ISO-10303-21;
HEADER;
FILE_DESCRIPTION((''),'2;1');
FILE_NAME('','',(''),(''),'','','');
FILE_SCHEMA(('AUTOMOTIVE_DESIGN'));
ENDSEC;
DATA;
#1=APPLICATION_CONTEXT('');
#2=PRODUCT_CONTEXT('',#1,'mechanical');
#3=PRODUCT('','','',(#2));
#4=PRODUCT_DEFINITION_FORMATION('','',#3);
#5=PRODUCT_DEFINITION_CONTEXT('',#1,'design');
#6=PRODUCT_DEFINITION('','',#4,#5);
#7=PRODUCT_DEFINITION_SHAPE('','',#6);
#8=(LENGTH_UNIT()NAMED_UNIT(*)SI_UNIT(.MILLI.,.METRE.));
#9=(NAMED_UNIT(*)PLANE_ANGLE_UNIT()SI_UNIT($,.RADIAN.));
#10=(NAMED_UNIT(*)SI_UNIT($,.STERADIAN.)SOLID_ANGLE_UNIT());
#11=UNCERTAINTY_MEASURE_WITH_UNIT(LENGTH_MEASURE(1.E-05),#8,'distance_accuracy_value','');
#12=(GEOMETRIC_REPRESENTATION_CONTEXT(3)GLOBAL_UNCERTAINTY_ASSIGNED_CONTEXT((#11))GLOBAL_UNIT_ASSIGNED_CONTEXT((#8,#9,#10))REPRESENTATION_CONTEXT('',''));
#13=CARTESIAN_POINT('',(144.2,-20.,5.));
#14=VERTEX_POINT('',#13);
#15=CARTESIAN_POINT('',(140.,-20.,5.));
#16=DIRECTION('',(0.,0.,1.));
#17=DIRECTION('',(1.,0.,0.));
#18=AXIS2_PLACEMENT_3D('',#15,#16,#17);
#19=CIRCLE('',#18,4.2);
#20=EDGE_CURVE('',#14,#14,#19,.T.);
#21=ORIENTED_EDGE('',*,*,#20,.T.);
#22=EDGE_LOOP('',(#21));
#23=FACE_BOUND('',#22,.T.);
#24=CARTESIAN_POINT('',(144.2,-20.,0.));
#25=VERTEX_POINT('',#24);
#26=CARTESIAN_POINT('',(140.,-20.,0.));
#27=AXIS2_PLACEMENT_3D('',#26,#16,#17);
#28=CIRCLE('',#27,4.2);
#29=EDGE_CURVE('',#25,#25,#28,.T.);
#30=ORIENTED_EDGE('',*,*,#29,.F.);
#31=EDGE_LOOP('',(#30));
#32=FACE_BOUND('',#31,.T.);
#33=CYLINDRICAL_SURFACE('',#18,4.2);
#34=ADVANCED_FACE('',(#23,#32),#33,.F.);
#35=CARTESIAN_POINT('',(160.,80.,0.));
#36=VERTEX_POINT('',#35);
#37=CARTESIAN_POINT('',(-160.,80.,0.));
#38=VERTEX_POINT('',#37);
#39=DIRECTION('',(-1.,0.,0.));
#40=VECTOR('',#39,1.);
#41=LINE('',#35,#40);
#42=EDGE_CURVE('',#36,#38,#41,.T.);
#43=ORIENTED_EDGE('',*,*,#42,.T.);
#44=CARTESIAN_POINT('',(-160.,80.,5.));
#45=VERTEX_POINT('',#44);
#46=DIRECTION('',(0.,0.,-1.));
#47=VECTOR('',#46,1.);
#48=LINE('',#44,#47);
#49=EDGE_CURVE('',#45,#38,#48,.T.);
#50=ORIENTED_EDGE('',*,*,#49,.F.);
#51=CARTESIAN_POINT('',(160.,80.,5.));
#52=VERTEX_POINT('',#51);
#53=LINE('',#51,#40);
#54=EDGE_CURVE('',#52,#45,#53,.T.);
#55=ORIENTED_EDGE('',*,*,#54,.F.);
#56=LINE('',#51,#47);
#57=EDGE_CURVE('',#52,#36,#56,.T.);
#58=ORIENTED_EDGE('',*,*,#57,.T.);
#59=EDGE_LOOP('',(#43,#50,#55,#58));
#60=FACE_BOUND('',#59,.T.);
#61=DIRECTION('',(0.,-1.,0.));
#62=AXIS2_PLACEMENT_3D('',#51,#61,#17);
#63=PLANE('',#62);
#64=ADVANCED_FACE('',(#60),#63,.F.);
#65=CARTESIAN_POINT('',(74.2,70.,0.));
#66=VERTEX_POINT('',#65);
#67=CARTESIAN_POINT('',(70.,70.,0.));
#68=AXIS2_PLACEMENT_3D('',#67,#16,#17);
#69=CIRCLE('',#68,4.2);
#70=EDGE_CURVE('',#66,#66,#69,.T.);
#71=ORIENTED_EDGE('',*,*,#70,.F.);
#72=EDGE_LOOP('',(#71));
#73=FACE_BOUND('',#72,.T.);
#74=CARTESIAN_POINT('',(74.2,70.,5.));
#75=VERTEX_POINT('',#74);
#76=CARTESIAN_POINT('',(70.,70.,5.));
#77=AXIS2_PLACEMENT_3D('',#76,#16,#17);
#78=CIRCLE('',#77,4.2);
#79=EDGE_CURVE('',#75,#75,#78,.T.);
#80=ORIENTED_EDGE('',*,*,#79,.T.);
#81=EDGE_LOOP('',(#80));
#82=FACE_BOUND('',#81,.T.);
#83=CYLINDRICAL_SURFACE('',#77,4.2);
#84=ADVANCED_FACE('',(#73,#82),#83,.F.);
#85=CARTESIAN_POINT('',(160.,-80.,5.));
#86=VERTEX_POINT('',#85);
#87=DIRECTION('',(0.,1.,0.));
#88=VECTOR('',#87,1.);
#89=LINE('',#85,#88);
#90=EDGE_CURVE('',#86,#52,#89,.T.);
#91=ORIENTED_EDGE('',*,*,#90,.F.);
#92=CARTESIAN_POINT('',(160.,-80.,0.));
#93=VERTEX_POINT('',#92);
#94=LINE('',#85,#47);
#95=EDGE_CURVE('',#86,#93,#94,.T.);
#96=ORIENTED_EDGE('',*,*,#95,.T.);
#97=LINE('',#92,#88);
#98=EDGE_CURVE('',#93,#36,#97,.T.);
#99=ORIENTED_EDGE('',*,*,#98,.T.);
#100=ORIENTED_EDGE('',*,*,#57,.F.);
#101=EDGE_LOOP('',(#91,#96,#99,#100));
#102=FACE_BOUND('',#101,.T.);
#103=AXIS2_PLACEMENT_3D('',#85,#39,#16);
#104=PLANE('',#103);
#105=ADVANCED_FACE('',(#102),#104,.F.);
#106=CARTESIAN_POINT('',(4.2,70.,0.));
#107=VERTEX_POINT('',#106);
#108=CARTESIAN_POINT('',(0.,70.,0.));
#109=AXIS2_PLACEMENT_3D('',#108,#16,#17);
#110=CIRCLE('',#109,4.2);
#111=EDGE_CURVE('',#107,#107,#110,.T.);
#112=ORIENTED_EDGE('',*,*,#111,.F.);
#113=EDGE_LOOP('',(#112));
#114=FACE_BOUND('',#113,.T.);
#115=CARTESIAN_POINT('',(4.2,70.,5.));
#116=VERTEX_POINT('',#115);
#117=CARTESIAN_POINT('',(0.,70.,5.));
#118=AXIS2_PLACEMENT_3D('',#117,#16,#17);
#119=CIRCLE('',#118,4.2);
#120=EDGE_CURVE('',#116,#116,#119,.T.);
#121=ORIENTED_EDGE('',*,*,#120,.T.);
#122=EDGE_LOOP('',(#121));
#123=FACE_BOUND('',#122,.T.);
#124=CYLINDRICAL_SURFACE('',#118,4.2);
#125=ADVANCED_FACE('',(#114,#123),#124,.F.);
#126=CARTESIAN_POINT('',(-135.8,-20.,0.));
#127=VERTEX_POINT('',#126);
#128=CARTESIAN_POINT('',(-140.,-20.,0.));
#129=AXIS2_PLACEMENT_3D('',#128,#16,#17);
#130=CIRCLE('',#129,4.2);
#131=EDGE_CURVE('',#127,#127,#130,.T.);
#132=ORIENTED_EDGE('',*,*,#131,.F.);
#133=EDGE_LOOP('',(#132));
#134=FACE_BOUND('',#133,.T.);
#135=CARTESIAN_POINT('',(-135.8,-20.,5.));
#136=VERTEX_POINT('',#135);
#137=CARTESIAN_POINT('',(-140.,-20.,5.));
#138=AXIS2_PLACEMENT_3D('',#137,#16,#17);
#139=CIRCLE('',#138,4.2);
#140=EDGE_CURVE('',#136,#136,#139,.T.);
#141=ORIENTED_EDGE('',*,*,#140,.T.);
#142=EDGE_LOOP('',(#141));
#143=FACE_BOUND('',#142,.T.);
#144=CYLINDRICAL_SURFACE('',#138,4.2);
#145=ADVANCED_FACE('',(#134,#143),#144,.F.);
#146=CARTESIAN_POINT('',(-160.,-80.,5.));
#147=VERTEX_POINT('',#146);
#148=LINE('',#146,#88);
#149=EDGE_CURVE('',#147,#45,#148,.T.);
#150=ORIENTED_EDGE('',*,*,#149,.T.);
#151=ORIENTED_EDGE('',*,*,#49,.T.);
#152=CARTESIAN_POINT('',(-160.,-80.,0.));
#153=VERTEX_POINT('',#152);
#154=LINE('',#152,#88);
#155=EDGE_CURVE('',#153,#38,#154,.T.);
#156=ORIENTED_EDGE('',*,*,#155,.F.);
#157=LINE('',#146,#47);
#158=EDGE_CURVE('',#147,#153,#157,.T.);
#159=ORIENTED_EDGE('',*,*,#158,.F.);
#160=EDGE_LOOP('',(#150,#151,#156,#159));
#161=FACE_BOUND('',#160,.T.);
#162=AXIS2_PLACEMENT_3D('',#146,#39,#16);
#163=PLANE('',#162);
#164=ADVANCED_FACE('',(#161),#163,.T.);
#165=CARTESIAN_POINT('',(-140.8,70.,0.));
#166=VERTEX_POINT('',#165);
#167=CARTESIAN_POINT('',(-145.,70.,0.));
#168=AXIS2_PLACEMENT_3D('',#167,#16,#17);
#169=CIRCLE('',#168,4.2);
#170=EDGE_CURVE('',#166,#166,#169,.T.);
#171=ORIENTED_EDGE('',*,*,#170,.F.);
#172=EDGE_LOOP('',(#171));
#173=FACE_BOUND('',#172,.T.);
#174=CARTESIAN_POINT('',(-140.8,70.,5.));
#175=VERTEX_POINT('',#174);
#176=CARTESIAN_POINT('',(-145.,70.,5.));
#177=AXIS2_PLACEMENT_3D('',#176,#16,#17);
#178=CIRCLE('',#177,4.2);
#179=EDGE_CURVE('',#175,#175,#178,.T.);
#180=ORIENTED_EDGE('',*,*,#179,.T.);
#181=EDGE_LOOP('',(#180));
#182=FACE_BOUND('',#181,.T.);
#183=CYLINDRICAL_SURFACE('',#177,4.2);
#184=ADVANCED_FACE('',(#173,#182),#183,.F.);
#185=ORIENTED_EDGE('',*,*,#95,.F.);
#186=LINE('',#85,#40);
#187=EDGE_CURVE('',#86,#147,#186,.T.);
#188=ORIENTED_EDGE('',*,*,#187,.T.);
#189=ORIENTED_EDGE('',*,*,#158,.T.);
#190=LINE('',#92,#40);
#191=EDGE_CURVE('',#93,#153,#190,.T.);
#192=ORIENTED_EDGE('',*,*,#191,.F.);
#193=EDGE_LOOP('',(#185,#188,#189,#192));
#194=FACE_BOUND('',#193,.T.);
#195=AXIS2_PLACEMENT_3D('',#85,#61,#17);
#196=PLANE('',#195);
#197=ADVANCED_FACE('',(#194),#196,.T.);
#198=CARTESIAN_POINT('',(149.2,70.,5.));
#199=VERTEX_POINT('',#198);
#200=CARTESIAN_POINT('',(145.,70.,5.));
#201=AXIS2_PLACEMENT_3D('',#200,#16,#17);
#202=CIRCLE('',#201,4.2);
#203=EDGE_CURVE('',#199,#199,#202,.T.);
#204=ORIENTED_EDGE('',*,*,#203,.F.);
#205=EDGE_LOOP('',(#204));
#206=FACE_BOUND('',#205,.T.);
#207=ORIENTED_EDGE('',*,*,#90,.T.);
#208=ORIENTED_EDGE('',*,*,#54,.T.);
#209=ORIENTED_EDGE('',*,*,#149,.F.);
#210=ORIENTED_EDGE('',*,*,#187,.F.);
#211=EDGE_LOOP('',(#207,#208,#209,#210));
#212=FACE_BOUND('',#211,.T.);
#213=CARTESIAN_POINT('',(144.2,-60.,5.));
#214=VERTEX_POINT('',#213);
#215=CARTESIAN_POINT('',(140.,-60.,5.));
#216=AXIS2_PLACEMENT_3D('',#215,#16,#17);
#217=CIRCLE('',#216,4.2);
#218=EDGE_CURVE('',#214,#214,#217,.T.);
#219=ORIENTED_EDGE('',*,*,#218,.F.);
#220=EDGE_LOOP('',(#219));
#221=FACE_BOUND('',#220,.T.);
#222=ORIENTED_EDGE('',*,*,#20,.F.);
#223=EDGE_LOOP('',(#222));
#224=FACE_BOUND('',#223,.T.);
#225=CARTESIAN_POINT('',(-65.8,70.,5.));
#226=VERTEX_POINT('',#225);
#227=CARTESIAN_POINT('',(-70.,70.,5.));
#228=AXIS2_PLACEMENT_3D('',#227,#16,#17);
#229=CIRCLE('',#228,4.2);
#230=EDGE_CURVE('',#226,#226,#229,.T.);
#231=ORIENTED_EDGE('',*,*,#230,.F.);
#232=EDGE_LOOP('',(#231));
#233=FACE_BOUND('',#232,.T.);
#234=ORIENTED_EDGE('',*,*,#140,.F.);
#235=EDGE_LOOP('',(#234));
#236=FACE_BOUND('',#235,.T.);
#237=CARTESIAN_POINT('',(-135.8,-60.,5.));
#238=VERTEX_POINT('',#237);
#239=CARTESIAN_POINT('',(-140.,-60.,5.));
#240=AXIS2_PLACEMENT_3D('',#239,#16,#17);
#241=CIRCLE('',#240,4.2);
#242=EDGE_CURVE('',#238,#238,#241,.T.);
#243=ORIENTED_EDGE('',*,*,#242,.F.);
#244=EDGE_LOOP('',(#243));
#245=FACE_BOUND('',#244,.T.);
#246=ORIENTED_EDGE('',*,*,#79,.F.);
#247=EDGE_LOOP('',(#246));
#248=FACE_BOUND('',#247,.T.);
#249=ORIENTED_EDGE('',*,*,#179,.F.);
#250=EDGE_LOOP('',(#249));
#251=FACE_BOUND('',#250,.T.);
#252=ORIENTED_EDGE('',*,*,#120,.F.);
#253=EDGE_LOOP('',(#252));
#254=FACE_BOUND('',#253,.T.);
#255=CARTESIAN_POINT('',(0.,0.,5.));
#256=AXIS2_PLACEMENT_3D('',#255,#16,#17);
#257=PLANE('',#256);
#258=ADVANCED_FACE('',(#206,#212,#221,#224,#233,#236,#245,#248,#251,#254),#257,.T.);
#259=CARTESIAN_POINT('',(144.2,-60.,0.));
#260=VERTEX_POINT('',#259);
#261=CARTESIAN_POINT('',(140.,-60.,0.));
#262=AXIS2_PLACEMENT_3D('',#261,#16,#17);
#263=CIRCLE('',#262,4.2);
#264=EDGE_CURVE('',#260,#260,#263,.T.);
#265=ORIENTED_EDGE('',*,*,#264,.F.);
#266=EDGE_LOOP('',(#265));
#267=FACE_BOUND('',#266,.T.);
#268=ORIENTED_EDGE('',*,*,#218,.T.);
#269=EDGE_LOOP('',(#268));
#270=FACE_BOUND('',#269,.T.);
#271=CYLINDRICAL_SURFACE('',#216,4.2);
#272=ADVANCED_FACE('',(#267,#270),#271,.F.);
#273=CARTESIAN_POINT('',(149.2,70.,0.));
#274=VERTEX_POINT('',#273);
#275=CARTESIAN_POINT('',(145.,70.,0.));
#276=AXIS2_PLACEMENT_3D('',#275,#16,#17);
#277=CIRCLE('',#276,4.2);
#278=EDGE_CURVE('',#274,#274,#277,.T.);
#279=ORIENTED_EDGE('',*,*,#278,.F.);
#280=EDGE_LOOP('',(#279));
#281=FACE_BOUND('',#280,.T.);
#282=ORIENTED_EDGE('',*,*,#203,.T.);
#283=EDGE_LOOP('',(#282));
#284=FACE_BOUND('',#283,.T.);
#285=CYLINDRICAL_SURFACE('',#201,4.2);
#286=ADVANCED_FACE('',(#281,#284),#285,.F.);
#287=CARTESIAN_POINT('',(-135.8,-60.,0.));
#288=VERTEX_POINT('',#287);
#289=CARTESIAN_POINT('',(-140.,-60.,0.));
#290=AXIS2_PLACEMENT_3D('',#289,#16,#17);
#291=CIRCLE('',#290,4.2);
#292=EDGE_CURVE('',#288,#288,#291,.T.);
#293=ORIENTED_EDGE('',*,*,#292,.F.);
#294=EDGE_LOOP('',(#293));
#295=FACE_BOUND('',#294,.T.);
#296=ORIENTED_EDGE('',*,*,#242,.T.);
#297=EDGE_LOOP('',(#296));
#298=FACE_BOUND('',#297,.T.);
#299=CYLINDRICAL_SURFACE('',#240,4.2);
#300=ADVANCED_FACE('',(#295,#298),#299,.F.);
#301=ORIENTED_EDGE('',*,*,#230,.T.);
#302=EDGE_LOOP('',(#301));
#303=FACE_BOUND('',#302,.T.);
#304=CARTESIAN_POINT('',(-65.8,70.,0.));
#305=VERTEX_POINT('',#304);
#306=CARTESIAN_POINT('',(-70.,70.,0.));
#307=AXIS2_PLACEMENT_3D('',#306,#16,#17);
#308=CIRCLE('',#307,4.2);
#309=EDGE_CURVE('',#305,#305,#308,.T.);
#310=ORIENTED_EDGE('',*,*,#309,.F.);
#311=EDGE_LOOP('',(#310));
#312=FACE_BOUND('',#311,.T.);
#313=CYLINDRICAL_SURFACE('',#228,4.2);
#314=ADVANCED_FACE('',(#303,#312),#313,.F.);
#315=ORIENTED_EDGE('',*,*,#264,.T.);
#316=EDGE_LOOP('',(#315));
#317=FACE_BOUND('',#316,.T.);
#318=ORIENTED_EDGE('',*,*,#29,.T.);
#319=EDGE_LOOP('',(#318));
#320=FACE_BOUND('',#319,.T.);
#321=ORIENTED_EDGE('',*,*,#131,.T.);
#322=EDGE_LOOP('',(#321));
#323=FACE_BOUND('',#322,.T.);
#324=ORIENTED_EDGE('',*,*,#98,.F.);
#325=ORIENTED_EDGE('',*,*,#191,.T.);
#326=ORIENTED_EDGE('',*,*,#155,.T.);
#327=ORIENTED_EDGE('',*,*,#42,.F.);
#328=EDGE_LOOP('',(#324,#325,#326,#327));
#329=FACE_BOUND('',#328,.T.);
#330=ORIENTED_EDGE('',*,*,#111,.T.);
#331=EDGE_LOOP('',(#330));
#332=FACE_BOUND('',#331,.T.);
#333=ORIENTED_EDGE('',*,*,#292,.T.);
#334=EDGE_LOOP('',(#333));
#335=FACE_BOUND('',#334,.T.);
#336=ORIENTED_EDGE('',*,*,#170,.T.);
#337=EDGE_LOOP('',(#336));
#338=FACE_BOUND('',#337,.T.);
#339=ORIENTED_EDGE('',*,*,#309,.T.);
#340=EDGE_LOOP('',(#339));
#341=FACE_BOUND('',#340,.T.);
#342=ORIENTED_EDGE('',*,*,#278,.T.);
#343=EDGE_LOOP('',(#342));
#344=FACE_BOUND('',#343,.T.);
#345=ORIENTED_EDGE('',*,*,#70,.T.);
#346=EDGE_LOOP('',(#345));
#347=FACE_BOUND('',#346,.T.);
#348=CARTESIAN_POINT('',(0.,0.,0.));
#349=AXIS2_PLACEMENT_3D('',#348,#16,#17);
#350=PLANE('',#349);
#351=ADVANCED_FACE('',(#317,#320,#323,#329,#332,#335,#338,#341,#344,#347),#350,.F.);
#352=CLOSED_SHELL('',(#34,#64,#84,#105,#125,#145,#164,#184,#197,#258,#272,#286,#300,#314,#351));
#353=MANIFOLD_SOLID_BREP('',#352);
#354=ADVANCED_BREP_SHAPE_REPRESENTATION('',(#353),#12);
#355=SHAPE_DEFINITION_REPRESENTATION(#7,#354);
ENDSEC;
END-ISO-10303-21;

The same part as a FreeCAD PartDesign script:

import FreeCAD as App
import Part
import Sketcher

doc = App.newDocument("Part")
body = doc.addObject("PartDesign::Body", "Body")

sketch1 = body.newObject("Sketcher::SketchObject", "Sketch")
sketch1.AttachmentSupport = (doc.getObject("XY_Plane"), [""])
sketch1.MapMode = "FlatFace"
sketch1.addGeometry([
    Part.LineSegment(App.Vector(-160, 80, 0), App.Vector(-160, -80, 0)),
    Part.LineSegment(App.Vector(-160, -80, 0), App.Vector(160, -80, 0)),
    Part.LineSegment(App.Vector(160, -80, 0), App.Vector(160, 80, 0)),
    Part.LineSegment(App.Vector(160, 80, 0), App.Vector(-160, 80, 0)),
], False)
sketch1.addConstraint([
    Sketcher.Constraint("Coincident", 0, 2, 1, 1),
    Sketcher.Constraint("Coincident", 1, 2, 2, 1),
    Sketcher.Constraint("Coincident", 2, 2, 3, 1),
    Sketcher.Constraint("Coincident", 3, 2, 0, 1),
    Sketcher.Constraint("Vertical", 0),
    Sketcher.Constraint("Horizontal", 1),
    Sketcher.Constraint("Vertical", 2),
    Sketcher.Constraint("Horizontal", 3),
    Sketcher.Constraint("Symmetric", 0, 2, 2, 2, -1, 1),
    Sketcher.Constraint("DistanceX", 1, 1, 1, 2, 320.0),
    Sketcher.Constraint("DistanceY", 0, 2, 0, 1, 160.0),
])
pad1 = body.newObject("PartDesign::Pad", "Pad")
pad1.Profile = sketch1
pad1.Length = 5

sketch2 = body.newObject("Sketcher::SketchObject", "Sketch001")
sketch2.AttachmentSupport = (doc.getObject("XY_Plane"), [""])
sketch2.MapMode = "FlatFace"
sketch2.AttachmentOffset = App.Placement(App.Vector(0, 0, 5), App.Rotation())
sketch2.addGeometry([
    Part.Circle(App.Vector(-145, 70, 0), App.Vector(0, 0, 1), 4.2),
    Part.Circle(App.Vector(-70, 70, 0), App.Vector(0, 0, 1), 4.2),
    Part.Circle(App.Vector(0, 70, 0), App.Vector(0, 0, 1), 4.2),
    Part.Circle(App.Vector(70, 70, 0), App.Vector(0, 0, 1), 4.2),
    Part.Circle(App.Vector(145, 70, 0), App.Vector(0, 0, 1), 4.2),
    Part.Circle(App.Vector(-140, -20, 0), App.Vector(0, 0, 1), 4.2),
    Part.Circle(App.Vector(-140, -60, 0), App.Vector(0, 0, 1), 4.2),
    Part.Circle(App.Vector(140, -20, 0), App.Vector(0, 0, 1), 4.2),
    Part.Circle(App.Vector(140, -60, 0), App.Vector(0, 0, 1), 4.2),
], False)
sketch2.addConstraint([
    Sketcher.Constraint("Equal", 0, 1),
    Sketcher.Constraint("Equal", 1, 2),
    Sketcher.Constraint("Equal", 2, 3),
    Sketcher.Constraint("Equal", 3, 4),
    Sketcher.Constraint("Equal", 4, 5),
    Sketcher.Constraint("Equal", 5, 6),
    Sketcher.Constraint("Equal", 6, 7),
    Sketcher.Constraint("Equal", 7, 8),
    Sketcher.Constraint("Symmetric", 1, 3, 3, 3, -2),
    Sketcher.Constraint("Symmetric", 0, 3, 4, 3, -2),
    Sketcher.Constraint("Symmetric", 5, 3, 7, 3, -2),
    Sketcher.Constraint("Symmetric", 6, 3, 8, 3, -2),
    Sketcher.Constraint("PointOnObject", 2, 3, -2),
    Sketcher.Constraint("Horizontal", 0, 3, 1, 3),
    Sketcher.Constraint("Horizontal", 1, 3, 2, 3),
    Sketcher.Constraint("Vertical", 5, 3, 6, 3),
    Sketcher.Constraint("Diameter", 0, 8.4),
    Sketcher.Constraint("DistanceX", 0, 3, -1, 1, 145.0),
    Sketcher.Constraint("DistanceY", -1, 1, 0, 3, 70.0),
    Sketcher.Constraint("DistanceX", 1, 3, -1, 1, 70.0),
    Sketcher.Constraint("DistanceX", 5, 3, -1, 1, 140.0),
    Sketcher.Constraint("DistanceY", 5, 3, -1, 1, 20.0),
    Sketcher.Constraint("DistanceY", 6, 3, -1, 1, 60.0),
])
doc.recompute()
hole = body.newObject("PartDesign::Hole", "Hole")
hole.Profile = sketch2
hole.ThreadType = "None"
hole.Diameter = 8.4
hole.DepthType = "ThroughAll"

doc.recompute()
